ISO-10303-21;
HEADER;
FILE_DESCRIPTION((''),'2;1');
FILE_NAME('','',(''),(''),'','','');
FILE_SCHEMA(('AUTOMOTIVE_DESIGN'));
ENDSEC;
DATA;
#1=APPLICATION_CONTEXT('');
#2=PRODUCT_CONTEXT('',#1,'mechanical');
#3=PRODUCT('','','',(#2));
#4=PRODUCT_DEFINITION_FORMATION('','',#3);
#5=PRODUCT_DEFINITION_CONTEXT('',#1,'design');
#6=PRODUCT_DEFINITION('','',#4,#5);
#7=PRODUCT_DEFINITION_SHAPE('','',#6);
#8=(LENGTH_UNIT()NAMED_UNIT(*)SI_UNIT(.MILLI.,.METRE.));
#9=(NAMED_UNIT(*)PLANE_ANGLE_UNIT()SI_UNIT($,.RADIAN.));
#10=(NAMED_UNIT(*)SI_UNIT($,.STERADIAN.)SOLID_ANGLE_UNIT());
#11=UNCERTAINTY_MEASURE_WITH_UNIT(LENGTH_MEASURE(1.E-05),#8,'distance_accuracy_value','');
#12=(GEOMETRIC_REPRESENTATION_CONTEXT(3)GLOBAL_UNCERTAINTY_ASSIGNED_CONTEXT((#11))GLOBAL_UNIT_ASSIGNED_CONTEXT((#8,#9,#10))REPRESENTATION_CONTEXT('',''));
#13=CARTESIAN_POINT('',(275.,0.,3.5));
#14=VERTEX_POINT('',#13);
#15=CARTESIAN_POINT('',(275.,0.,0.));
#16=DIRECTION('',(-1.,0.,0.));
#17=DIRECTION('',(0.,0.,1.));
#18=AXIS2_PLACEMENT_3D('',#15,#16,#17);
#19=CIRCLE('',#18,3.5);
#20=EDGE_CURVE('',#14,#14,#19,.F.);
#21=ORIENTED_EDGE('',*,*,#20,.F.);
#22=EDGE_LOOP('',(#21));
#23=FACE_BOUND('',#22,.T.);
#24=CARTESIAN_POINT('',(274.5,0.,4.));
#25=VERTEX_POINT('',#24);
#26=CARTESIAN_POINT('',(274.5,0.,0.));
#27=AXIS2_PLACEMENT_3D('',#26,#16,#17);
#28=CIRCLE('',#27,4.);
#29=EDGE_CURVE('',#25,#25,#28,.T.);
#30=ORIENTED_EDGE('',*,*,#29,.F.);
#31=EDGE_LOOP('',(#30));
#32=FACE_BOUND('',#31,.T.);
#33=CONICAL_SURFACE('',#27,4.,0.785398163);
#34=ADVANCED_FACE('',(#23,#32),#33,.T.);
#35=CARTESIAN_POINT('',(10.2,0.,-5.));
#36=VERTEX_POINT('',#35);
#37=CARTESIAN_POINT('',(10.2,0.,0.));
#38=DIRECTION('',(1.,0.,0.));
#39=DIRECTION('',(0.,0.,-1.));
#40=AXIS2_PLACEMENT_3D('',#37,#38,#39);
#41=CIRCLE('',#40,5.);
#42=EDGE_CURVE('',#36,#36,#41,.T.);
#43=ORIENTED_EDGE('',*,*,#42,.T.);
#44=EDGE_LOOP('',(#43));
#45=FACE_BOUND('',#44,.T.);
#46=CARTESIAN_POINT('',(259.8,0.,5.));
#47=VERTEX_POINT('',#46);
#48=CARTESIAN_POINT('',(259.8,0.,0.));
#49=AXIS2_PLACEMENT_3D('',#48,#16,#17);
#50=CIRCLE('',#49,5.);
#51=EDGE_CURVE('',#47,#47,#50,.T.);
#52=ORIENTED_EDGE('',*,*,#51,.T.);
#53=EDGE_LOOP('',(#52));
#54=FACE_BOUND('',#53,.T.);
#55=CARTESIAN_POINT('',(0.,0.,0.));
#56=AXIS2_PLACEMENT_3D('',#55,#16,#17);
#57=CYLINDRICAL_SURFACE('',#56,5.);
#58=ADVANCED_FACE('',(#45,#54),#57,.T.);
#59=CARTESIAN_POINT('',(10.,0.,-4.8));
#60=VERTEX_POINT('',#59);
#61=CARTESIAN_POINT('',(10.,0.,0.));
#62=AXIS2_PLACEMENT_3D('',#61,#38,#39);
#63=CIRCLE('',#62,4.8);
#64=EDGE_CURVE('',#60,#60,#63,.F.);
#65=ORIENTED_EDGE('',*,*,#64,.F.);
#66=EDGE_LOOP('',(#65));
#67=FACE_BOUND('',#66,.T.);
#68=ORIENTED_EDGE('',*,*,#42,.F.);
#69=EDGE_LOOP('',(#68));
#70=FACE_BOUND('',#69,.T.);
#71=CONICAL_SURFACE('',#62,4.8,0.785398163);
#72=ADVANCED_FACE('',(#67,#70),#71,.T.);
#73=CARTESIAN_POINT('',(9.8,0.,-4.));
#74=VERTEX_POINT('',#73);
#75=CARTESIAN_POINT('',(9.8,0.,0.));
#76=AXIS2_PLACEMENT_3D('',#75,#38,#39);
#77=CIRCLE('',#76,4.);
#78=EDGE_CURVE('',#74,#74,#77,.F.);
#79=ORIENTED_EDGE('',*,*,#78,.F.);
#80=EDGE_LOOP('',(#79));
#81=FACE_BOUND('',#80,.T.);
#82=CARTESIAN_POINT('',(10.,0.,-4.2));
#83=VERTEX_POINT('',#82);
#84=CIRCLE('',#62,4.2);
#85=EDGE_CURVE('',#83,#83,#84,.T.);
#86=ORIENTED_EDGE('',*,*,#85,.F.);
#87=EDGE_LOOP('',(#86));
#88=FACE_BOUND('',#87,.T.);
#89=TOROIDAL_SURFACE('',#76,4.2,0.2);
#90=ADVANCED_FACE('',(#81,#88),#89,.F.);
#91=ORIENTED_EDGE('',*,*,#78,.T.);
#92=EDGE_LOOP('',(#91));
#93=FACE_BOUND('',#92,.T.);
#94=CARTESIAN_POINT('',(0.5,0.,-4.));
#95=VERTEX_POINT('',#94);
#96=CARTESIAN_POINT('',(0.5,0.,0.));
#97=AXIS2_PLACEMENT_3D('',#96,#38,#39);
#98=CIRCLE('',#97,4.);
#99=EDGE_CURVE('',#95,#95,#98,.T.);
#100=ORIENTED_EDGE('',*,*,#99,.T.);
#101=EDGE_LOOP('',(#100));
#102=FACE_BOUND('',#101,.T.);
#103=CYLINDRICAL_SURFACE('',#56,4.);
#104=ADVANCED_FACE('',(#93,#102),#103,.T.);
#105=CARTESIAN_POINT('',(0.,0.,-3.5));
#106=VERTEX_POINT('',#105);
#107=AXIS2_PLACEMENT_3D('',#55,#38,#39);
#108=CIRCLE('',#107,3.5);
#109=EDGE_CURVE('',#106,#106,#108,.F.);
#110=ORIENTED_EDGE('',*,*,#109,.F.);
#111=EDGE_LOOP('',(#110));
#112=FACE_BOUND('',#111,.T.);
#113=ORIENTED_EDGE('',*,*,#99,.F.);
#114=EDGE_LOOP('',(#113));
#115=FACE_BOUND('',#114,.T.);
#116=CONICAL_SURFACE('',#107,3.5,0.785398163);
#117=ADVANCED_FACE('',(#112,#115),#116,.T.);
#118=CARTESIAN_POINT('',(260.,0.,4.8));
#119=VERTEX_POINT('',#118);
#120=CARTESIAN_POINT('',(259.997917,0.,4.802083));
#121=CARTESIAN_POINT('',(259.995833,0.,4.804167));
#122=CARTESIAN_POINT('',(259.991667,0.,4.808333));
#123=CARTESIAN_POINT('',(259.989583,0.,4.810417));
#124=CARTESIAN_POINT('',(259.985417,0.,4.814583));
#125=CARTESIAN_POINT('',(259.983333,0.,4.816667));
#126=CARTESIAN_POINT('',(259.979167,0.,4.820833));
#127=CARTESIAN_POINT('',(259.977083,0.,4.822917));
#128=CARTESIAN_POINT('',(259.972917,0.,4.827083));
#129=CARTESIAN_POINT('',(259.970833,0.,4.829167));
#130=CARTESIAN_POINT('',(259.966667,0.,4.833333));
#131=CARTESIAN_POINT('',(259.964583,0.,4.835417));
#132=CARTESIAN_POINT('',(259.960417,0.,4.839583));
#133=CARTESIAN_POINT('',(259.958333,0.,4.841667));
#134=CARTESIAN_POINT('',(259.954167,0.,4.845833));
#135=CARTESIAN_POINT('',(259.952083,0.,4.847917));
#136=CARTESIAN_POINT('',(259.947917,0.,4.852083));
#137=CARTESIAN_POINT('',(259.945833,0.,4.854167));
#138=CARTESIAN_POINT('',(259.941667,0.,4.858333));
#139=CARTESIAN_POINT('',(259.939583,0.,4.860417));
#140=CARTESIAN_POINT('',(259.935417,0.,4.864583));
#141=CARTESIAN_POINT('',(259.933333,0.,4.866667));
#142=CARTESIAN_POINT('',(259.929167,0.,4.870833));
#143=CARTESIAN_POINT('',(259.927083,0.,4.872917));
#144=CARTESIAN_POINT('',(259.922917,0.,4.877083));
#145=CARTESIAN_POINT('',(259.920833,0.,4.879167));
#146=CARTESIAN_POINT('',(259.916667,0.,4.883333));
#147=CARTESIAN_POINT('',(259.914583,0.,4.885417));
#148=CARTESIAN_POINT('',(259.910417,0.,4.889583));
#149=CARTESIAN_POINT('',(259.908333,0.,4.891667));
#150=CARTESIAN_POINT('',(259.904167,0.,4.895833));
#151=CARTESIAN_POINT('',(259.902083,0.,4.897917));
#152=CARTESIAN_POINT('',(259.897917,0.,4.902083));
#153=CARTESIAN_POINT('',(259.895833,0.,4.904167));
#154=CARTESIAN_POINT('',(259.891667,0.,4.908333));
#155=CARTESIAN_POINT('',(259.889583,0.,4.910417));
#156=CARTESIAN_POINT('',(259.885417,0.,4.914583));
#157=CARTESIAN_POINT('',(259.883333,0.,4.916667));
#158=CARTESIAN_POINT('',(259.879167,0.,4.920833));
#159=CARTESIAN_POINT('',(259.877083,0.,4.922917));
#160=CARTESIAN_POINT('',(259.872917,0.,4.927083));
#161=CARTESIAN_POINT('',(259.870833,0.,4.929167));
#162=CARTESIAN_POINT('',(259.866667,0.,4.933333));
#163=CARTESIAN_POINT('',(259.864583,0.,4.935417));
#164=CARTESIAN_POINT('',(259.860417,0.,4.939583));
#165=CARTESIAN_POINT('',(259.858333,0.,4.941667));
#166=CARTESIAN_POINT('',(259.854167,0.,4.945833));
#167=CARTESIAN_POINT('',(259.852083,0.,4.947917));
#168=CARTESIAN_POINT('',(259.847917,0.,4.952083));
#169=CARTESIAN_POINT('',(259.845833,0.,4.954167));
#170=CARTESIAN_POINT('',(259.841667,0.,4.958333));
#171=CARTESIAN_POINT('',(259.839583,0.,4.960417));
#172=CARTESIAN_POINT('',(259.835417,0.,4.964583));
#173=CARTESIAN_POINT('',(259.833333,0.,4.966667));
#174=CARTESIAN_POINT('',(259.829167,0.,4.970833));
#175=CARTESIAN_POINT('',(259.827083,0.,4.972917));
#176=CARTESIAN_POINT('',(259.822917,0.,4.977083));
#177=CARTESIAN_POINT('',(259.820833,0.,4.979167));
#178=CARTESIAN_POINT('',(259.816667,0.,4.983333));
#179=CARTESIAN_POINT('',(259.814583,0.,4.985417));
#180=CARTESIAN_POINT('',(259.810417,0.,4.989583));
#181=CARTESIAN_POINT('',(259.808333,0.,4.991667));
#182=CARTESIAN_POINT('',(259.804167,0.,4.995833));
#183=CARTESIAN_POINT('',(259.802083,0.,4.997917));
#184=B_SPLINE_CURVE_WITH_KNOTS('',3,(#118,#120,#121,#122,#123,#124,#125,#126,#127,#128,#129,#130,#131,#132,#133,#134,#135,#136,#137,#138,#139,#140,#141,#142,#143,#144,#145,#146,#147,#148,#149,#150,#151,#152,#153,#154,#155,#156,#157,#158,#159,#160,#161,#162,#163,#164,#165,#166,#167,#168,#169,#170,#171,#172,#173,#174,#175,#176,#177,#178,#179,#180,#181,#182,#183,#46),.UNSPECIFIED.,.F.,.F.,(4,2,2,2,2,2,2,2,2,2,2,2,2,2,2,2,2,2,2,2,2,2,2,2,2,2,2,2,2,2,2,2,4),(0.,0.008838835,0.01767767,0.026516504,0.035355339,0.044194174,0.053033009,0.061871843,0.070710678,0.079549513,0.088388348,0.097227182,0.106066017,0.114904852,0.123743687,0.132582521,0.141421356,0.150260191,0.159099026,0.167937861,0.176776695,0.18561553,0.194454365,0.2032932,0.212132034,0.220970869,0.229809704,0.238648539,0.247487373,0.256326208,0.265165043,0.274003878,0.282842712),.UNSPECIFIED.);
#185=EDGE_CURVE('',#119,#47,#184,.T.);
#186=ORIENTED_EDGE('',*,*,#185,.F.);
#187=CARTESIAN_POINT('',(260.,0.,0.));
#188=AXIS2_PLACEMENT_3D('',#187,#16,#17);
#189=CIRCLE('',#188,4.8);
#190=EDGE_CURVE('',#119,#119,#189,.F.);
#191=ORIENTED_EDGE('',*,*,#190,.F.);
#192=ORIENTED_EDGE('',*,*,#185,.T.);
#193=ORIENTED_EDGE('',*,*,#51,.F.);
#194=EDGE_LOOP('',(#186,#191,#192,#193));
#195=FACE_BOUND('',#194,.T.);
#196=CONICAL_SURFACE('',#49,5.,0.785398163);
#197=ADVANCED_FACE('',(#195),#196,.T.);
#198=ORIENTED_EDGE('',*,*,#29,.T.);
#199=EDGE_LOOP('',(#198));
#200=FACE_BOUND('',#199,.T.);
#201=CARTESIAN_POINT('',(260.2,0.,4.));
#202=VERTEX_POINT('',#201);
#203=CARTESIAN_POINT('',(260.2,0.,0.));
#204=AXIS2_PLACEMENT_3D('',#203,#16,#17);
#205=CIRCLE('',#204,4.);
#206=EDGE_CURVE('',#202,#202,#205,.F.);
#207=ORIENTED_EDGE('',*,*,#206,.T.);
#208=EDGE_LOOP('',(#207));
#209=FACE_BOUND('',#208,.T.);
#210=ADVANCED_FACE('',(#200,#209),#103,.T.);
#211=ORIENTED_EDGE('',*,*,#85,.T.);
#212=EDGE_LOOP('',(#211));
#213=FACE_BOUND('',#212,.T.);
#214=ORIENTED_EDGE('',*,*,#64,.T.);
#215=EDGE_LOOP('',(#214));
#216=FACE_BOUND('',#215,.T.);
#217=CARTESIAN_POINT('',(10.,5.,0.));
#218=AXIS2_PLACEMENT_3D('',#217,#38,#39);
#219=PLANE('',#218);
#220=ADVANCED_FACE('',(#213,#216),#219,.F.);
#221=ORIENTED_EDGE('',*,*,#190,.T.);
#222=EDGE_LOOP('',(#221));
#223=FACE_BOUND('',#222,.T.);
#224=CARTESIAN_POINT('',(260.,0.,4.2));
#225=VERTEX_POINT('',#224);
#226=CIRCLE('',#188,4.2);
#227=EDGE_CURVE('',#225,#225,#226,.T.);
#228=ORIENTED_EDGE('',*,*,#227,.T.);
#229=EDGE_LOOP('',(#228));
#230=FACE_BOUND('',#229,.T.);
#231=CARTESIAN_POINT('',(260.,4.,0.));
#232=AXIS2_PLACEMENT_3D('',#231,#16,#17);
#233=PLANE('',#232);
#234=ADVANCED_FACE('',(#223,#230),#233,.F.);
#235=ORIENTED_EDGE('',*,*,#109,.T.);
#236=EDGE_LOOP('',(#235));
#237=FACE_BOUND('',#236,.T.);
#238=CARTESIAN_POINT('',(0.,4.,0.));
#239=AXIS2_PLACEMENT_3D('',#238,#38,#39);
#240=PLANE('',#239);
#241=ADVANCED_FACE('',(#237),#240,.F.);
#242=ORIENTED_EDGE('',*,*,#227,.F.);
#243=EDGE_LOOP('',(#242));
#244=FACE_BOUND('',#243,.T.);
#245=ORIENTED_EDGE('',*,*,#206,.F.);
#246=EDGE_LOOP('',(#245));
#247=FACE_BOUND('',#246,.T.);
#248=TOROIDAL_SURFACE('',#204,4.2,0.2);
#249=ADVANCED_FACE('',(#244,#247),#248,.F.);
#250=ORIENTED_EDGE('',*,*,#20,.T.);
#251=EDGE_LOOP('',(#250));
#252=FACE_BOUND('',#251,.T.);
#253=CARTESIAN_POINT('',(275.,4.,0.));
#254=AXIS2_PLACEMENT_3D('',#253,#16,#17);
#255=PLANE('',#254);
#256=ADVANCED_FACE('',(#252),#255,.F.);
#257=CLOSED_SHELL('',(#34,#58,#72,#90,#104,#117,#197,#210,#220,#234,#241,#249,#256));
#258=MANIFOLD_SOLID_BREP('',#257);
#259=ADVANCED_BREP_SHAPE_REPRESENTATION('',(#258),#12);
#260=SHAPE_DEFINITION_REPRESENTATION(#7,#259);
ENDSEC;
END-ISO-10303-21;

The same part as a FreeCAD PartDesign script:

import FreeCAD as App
import Part
import Sketcher

V = App.Vector


def edges_at(feature, points):
    """Names of the edges that pass closest to the given points."""
    edges = feature.Shape.Edges
    near = lambda p: min(range(len(edges)), key=lambda i: edges[i].distToShape(Part.Vertex(*p))[0])
    return sorted({f"Edge{near(p) + 1}" for p in points})

doc = App.newDocument("Part")
body = doc.addObject("PartDesign::Body", "Body")

sketch1 = doc.addObject("Sketcher::SketchObject", "Sketch")
body.addObject(sketch1)
sketch1.AttachmentSupport = (doc.XY_Plane, [""])
sketch1.MapMode = "FlatFace"
sketch1.addGeometry([
    Part.LineSegment(V(0, 0, 0), V(275, 0, 0)),
    Part.LineSegment(V(275, 0, 0), V(275, 4, 0)),
    Part.LineSegment(V(275, 4, 0), V(260, 4, 0)),
    Part.LineSegment(V(260, 4, 0), V(260, 5, 0)),
    Part.LineSegment(V(260, 5, 0), V(10, 5, 0)),
    Part.LineSegment(V(10, 5, 0), V(10, 4, 0)),
    Part.LineSegment(V(10, 4, 0), V(0, 4, 0)),
    Part.LineSegment(V(0, 4, 0), V(0, 0, 0)),
], False)
sketch1.addConstraint([
    Sketcher.Constraint("Coincident", 0, 2, 1, 1),
    Sketcher.Constraint("Coincident", 1, 2, 2, 1),
    Sketcher.Constraint("Coincident", 2, 2, 3, 1),
    Sketcher.Constraint("Coincident", 3, 2, 4, 1),
    Sketcher.Constraint("Coincident", 4, 2, 5, 1),
    Sketcher.Constraint("Coincident", 5, 2, 6, 1),
    Sketcher.Constraint("Coincident", 6, 2, 7, 1),
    Sketcher.Constraint("Coincident", 7, 2, 0, 1),
    Sketcher.Constraint("Horizontal", 0),
    Sketcher.Constraint("Vertical", 1),
    Sketcher.Constraint("Horizontal", 2),
    Sketcher.Constraint("Vertical", 3),
    Sketcher.Constraint("Horizontal", 4),
    Sketcher.Constraint("Vertical", 5),
    Sketcher.Constraint("Horizontal", 6),
    Sketcher.Constraint("Vertical", 7),
    Sketcher.Constraint("Coincident", 7, 2, -1, 1),
    Sketcher.Constraint("Horizontal", 2, 2, 5, 2),
    Sketcher.Constraint("DistanceX", 0, 1, 0, 2, 275.0),
    Sketcher.Constraint("DistanceX", 2, 2, 2, 1, 15.0),
    Sketcher.Constraint("DistanceX", 4, 2, 4, 1, 250.0),
    Sketcher.Constraint("DistanceY", 1, 1, 1, 2, 4.0),
    Sketcher.Constraint("DistanceY", 3, 1, 3, 2, 1.0),
])
revolution = doc.addObject("PartDesign::Revolution", "Revolution")
body.addObject(revolution)
revolution.Profile = sketch1
revolution.ReferenceAxis = (sketch1, ["H_Axis"])
revolution.Angle = 360
doc.recompute()

chamfer = doc.addObject("PartDesign::Chamfer", "Chamfer")
body.addObject(chamfer)
chamfer.Base = (revolution, edges_at(revolution, [(260, 0, -5)]))
chamfer.Size = 0.2
doc.recompute()

chamfer2 = doc.addObject("PartDesign::Chamfer", "Chamfer001")
body.addObject(chamfer2)
chamfer2.Base = (chamfer, edges_at(chamfer, [(10, 0, -5)]))
chamfer2.Size = 0.2
doc.recompute()

chamfer3 = doc.addObject("PartDesign::Chamfer", "Chamfer002")
body.addObject(chamfer3)
chamfer3.Base = (chamfer2, edges_at(chamfer2, [(0, 0, -4)]))
chamfer3.Size = 0.5
doc.recompute()

chamfer4 = doc.addObject("PartDesign::Chamfer", "Chamfer003")
body.addObject(chamfer4)
chamfer4.Base = (chamfer3, edges_at(chamfer3, [(275, 0, -4)]))
chamfer4.Size = 0.5
doc.recompute()

fillet = doc.addObject("PartDesign::Fillet", "Fillet")
body.addObject(fillet)
fillet.Base = (chamfer4, edges_at(chamfer4, [(10, 0, -4)]))
fillet.Radius = 0.2
doc.recompute()

fillet2 = doc.addObject("PartDesign::Fillet", "Fillet001")
body.addObject(fillet2)
fillet2.Base = (fillet, edges_at(fillet, [(260, 0, -4)]))
fillet2.Radius = 0.2

doc.recompute()
